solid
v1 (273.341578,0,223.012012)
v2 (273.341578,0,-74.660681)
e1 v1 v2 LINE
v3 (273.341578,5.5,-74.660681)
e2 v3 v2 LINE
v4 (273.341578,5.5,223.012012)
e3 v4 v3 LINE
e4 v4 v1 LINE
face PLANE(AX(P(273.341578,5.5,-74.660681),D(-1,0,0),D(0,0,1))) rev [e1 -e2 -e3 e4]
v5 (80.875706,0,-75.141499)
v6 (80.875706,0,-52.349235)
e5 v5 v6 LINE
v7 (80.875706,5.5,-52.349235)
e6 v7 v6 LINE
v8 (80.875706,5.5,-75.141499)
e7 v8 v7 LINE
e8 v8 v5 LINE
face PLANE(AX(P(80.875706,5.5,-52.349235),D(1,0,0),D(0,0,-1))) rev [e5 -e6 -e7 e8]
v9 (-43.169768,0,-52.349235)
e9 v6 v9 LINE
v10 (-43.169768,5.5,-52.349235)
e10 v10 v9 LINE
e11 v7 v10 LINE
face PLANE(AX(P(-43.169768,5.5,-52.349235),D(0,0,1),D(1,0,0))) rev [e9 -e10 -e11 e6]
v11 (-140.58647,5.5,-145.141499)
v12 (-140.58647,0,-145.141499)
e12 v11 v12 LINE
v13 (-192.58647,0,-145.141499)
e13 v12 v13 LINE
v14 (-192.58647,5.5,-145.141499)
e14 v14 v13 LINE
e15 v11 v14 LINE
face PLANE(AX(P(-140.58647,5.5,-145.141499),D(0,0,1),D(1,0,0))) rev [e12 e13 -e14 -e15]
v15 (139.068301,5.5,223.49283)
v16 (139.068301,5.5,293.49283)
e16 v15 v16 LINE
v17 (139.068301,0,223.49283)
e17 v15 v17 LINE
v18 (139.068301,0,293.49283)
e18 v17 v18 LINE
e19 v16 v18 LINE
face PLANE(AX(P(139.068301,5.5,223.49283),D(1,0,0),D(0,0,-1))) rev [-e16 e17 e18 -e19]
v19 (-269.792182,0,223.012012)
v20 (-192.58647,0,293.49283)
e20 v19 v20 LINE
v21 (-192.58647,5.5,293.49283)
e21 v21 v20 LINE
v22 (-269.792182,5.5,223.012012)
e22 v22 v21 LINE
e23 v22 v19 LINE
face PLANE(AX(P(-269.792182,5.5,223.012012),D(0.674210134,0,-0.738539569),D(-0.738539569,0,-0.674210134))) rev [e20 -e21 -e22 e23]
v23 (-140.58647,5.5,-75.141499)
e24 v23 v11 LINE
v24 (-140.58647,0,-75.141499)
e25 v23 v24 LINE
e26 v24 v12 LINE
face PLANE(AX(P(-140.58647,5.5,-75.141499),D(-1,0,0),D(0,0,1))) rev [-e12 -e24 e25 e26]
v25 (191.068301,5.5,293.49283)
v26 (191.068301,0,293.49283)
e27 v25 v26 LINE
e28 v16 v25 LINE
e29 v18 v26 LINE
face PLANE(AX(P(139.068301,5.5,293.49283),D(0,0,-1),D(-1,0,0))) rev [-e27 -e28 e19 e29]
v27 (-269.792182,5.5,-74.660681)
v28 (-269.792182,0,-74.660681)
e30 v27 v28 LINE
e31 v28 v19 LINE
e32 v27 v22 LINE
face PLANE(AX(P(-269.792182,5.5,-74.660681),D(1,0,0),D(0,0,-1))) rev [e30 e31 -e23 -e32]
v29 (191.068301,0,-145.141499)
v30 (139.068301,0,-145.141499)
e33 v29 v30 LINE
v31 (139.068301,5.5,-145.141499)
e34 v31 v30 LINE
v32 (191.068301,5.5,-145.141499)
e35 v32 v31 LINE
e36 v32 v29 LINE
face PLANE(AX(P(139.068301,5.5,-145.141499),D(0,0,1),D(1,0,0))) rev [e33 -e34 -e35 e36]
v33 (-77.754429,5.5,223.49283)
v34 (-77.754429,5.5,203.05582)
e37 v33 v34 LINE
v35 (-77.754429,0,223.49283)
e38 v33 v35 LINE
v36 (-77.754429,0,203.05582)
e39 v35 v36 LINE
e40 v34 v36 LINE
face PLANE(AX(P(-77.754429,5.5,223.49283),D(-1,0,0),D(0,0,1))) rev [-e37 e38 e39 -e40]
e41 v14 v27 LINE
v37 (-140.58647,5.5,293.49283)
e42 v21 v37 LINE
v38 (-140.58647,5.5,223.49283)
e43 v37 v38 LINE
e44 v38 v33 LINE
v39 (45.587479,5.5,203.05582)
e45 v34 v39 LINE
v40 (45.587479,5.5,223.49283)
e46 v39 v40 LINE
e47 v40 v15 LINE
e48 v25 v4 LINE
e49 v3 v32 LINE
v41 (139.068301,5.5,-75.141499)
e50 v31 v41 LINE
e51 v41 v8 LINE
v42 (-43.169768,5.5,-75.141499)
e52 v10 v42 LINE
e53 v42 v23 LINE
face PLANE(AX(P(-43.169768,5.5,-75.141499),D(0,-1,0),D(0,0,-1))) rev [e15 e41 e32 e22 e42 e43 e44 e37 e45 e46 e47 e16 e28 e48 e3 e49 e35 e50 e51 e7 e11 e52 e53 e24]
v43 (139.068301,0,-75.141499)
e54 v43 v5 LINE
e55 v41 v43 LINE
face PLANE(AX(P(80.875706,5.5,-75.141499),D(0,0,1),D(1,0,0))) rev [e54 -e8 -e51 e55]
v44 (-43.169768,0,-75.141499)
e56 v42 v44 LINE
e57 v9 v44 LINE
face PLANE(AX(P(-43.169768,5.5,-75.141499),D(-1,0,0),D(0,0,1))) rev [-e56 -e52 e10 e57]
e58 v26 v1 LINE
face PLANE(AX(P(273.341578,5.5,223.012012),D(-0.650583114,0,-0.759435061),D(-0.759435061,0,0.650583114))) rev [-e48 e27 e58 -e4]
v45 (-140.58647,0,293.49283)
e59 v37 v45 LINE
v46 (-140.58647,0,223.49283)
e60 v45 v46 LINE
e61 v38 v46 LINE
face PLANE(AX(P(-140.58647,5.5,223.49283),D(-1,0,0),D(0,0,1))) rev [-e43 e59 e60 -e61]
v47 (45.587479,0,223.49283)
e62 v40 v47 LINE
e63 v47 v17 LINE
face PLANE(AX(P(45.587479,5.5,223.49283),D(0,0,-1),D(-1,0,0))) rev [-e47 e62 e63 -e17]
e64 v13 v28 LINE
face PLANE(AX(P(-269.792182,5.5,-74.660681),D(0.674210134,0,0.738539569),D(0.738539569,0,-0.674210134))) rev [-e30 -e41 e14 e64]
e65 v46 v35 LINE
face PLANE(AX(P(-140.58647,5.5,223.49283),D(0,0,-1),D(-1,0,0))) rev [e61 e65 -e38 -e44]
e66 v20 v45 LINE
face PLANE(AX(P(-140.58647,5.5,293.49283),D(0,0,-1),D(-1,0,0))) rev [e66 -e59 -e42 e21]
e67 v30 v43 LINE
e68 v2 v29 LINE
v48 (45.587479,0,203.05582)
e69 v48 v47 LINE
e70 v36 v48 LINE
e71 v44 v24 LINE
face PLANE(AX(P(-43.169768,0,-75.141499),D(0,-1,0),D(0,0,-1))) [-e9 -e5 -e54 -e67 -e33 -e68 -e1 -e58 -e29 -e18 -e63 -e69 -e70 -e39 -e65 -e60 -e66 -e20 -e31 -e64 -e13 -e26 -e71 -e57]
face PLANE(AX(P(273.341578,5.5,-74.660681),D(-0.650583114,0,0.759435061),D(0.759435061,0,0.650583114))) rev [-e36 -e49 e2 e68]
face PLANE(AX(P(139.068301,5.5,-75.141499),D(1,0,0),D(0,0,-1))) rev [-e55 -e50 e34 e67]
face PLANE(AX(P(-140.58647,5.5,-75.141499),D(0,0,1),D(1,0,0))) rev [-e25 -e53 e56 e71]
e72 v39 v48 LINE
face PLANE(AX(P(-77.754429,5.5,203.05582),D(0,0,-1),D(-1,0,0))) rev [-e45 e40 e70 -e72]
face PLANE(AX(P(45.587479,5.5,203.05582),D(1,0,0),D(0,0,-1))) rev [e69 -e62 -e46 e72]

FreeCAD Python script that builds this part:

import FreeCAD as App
import Part
import Sketcher

V = App.Vector


def add_polygon(sketch, points):
    """Adds a closed chain of lines whose ends are joined by coincident constraints."""
    first, n = sketch.GeometryCount, len(points)
    for a, b in zip(points, points[1:] + points[:1]):
        sketch.addGeometry(Part.LineSegment(App.Vector(*a, 0), App.Vector(*b, 0)), False)
    for i in range(n):
        sketch.addConstraint(Sketcher.Constraint("Coincident", first + i, 2, first + (i + 1) % n, 1))

doc = App.newDocument("Part")
params = doc.addObject("Spreadsheet::Sheet", "Params")
for row, (alias, value) in enumerate([
    ("sketch1_width", "52 mm"),
    ("sketch1_height", "70 mm"),
    ("pad1_length", "5.5 mm"),
], start=1):
    params.set(f"A{row}", alias)
    params.set(f"B{row}", "=" + value)
    params.setAlias(f"B{row}", alias)

body = doc.addObject("PartDesign::Body", "Body")

# Sketch on XZ plane
sketch1 = doc.addObject("Sketcher::SketchObject", "Sketch")
body.addObject(sketch1)
sketch1.AttachmentSupport = (doc.XZ_Plane, [""])
sketch1.MapMode = "FlatFace"
add_polygon(sketch1, [(-43.169768, -52.349235), (-43.169768, -75.141499), (-140.58647, -75.141499), (-140.58647, -145.141499), (-192.58647, -145.141499), (-269.792182, -74.660681), (-269.792182, 223.012012), (-192.58647, 293.49283), (-140.58647, 293.49283), (-140.58647, 223.49283), (-77.754429, 223.49283), (-77.754429, 203.05582), (45.587479, 203.05582), (45.587479, 223.49283), (139.068301, 223.49283), (139.068301, 293.49283), (191.068301, 293.49283), (273.341578, 223.012012), (273.341578, -74.660681), (191.068301, -145.141499), (139.068301, -145.141499), (139.068301, -75.141499), (80.875706, -75.141499), (80.875706, -52.349235)])  # lines 0-23
sketch1.addConstraint([
    Sketcher.Constraint("Vertical", 0),
    Sketcher.Constraint("Horizontal", 1),
    Sketcher.Constraint("Vertical", 2),
    Sketcher.Constraint("Horizontal", 3),
    Sketcher.Constraint("Vertical", 5),
    Sketcher.Constraint("Horizontal", 7),
    Sketcher.Constraint("Vertical", 8),
    Sketcher.Constraint("Horizontal", 9),
    Sketcher.Constraint("Vertical", 10),
    Sketcher.Constraint("Horizontal", 11),
    Sketcher.Constraint("Vertical", 12),
    Sketcher.Constraint("Horizontal", 13),
    Sketcher.Constraint("Vertical", 14),
    Sketcher.Constraint("Horizontal", 15),
    Sketcher.Constraint("Vertical", 17),
    Sketcher.Constraint("Horizontal", 19),
    Sketcher.Constraint("Vertical", 20),
    Sketcher.Constraint("Horizontal", 21),
    Sketcher.Constraint("Vertical", 22),
    Sketcher.Constraint("Horizontal", 23),
    Sketcher.Constraint("Horizontal", 9, 2, 12, 2),
    Sketcher.Constraint("Horizontal", 7, 2, 14, 2),
    Sketcher.Constraint("Horizontal", 5, 2, 16, 2),
    Sketcher.Constraint("Horizontal", 4, 2, 17, 2),
    Sketcher.Constraint("Horizontal", 3, 2, 18, 2),
    Sketcher.Constraint("Horizontal", 1, 2, 20, 2),
    Sketcher.Constraint("Vertical", 3, 2, 6, 2),
    Sketcher.Constraint("Vertical", 2, 2, 7, 2),
    Sketcher.Constraint("Vertical", 15, 2, 18, 2),
    Sketcher.Constraint("Vertical", 14, 2, 19, 2),
    Sketcher.Constraint("Equal", 7, 15),
    Sketcher.Constraint("Equal", 2, 8),
    Sketcher.Constraint("Equal", 4, 6),
    Sketcher.Constraint("DistanceX", 3, 2, 3, 1, 52.0),
    Sketcher.Constraint("DistanceY", 2, 2, 2, 1, 70.0),
    Sketcher.Constraint("DistanceX", 9, 1, 9, 2, 62.832041),
    Sketcher.Constraint("DistanceX", 11, 1, 11, 2, 123.341909),
    Sketcher.Constraint("DistanceX", 13, 1, 13, 2, 93.480822),
    Sketcher.Constraint("DistanceY", 10, 2, 10, 1, 20.43701),
    Sketcher.Constraint("DistanceY", 0, 2, -1, 1, 75.141499),
    Sketcher.Constraint("DistanceX", -1, 1, 13, 2, 139.068301),
    Sketcher.Constraint("DistanceX", 12, 2, 16, 2, 227.754099),
    Sketcher.Constraint("DistanceY", 17, 2, 11, 2, 277.716501),
    Sketcher.Constraint("Distance", 16, 108.334841),
    Sketcher.Constraint("DistanceX", 1, 2, 1, 1, 97.416702),
    Sketcher.Constraint("DistanceX", 21, 2, 21, 1, 58.192595),
    Sketcher.Constraint("DistanceY", 0, 2, 0, 1, 22.792265),
    Sketcher.Constraint("DistanceX", 4, 2, -1, 1, 269.792182),
])
sketch1.setExpression("Constraints[57]", "Params.sketch1_width")
sketch1.setExpression("Constraints[58]", "Params.sketch1_height")
pad1 = doc.addObject("PartDesign::Pad", "Pad")
body.addObject(pad1)
pad1.Profile = sketch1
pad1.setExpression("Length", "Params.pad1_length")
pad1.Reversed = True

doc.recompute()
